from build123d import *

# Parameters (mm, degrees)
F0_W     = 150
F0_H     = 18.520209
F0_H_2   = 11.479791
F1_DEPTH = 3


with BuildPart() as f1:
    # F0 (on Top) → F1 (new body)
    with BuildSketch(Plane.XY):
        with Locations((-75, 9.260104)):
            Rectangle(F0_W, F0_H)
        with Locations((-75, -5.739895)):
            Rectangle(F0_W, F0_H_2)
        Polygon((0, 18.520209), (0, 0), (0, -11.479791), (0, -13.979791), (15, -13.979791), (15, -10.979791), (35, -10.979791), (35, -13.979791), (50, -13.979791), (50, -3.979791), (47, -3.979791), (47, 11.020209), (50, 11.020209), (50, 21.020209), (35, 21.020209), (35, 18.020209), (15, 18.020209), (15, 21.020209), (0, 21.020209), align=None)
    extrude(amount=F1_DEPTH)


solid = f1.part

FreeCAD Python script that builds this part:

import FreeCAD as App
import Part
import Sketcher

V = App.Vector


def add_polygon(sketch, points):
    """Adds a closed chain of lines whose ends are joined by coincident constraints."""
    first, n = sketch.GeometryCount, len(points)
    for a, b in zip(points, points[1:] + points[:1]):
        sketch.addGeometry(Part.LineSegment(App.Vector(*a, 0), App.Vector(*b, 0)), False)
    for i in range(n):
        sketch.addConstraint(Sketcher.Constraint("Coincident", first + i, 2, first + (i + 1) % n, 1))

doc = App.newDocument("Part")
body = doc.addObject("PartDesign::Body", "Body")

# Sketch on XY plane
sketch1 = doc.addObject("Sketcher::SketchObject", "Sketch")
body.addObject(sketch1)
sketch1.AttachmentSupport = (doc.XY_Plane, [""])
sketch1.MapMode = "FlatFace"
add_polygon(sketch1, [(-150, -11.5), (0, -11.5), (0, -14), (15, -14), (15, -11), (35, -11), (35, -14), (50, -14), (50, -4), (47, -4), (47, 11), (50, 11), (50, 21), (35, 21), (35, 18), (15, 18), (15, 21), (0, 21), (0, 18.5), (-150, 18.5)])  # lines 0-19
sketch1.addConstraint(Sketcher.Constraint("Horizontal", 0))
sketch1.addConstraint(Sketcher.Constraint("Vertical", 1))
sketch1.addConstraint(Sketcher.Constraint("Horizontal", 2))
sketch1.addConstraint(Sketcher.Constraint("Vertical", 3))
sketch1.addConstraint(Sketcher.Constraint("Horizontal", 4))
sketch1.addConstraint(Sketcher.Constraint("Vertical", 5))
sketch1.addConstraint(Sketcher.Constraint("Horizontal", 6))
sketch1.addConstraint(Sketcher.Constraint("Vertical", 7))
sketch1.addConstraint(Sketcher.Constraint("Horizontal", 8))
sketch1.addConstraint(Sketcher.Constraint("Vertical", 9))
sketch1.addConstraint(Sketcher.Constraint("Horizontal", 10))
sketch1.addConstraint(Sketcher.Constraint("Vertical", 11))
sketch1.addConstraint(Sketcher.Constraint("Horizontal", 12))
sketch1.addConstraint(Sketcher.Constraint("Vertical", 13))
sketch1.addConstraint(Sketcher.Constraint("Horizontal", 14))
sketch1.addConstraint(Sketcher.Constraint("Vertical", 15))
sketch1.addConstraint(Sketcher.Constraint("Horizontal", 16))
sketch1.addConstraint(Sketcher.Constraint("Vertical", 17))
sketch1.addConstraint(Sketcher.Constraint("Horizontal", 18))
sketch1.addConstraint(Sketcher.Constraint("Vertical", 19))
sketch1.addConstraint(Sketcher.Constraint("PointOnObject", 0, 2, -2))
sketch1.addConstraint(Sketcher.Constraint("PointOnObject", 16, 2, -2))
sketch1.addConstraint(Sketcher.Constraint("Horizontal", 2, 2, 5, 2))
sketch1.addConstraint(Sketcher.Constraint("Horizontal", 12, 2, 15, 2))
sketch1.addConstraint(Sketcher.Constraint("Vertical", 7, 2, 10, 2))
sketch1.addConstraint(Sketcher.Constraint("Vertical", 5, 2, 12, 2))
sketch1.addConstraint(Sketcher.Constraint("Vertical", 3, 2, 14, 2))
sketch1.addConstraint(Sketcher.Constraint("Equal", 2, 6))
sketch1.addConstraint(Sketcher.Constraint("Equal", 10, 3))
sketch1.addConstraint(Sketcher.Constraint("Equal", 16, 9))
sketch1.addConstraint(Sketcher.Constraint("Equal", 7, 11))
sketch1.addConstraint(Sketcher.Constraint("Equal", 5, 13))
sketch1.addConstraint(Sketcher.Constraint("Equal", 1, 17))
sketch1.addConstraint(Sketcher.Constraint("DistanceX", 0, 1, 0, 2, 150.0))
sketch1.addConstraint(Sketcher.Constraint("DistanceX", 2, 1, 2, 2, 15.0))
sketch1.addConstraint(Sketcher.Constraint("DistanceX", 4, 1, 4, 2, 20.0))
sketch1.addConstraint(Sketcher.Constraint("DistanceX", 8, 2, 8, 1, 3.0))
sketch1.addConstraint(Sketcher.Constraint("DistanceY", 7, 1, 7, 2, 10.0))
sketch1.addConstraint(Sketcher.Constraint("DistanceY", 19, 2, 19, 1, 29.999999))
sketch1.addConstraint(Sketcher.Constraint("DistanceY", 0, 2, -1, 1, 11.479791))
pad1 = doc.addObject("PartDesign::Pad", "Pad")
body.addObject(pad1)
pad1.Profile = sketch1
pad1.Length = 3

doc.recompute()
